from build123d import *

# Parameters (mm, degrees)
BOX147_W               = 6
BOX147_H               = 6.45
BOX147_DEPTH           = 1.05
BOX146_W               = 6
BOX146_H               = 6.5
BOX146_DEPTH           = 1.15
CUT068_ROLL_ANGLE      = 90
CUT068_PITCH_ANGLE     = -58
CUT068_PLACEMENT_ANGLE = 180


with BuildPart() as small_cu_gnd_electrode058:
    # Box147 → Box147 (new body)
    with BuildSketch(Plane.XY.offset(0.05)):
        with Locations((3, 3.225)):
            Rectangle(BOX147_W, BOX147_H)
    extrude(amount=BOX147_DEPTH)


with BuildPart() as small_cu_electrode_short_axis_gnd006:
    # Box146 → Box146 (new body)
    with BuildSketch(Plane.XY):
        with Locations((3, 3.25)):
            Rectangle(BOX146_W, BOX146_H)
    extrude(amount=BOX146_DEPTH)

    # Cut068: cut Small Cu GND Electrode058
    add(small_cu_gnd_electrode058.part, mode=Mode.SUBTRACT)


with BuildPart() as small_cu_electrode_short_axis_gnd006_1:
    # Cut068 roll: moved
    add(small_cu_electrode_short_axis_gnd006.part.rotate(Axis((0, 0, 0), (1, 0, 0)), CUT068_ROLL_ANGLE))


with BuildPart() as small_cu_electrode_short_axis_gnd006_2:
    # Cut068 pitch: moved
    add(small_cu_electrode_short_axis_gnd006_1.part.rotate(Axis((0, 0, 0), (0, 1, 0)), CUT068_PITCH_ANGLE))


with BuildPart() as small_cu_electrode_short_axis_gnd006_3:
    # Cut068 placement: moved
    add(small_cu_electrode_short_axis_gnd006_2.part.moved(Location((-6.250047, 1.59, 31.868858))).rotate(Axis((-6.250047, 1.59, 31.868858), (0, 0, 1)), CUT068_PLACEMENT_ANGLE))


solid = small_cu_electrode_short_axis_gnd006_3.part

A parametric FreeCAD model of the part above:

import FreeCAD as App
import Part
import Sketcher


def add_polygon(sketch, points):
    """Adds a closed chain of lines whose ends are joined by coincident constraints."""
    first, n = sketch.GeometryCount, len(points)
    for a, b in zip(points, points[1:] + points[:1]):
        sketch.addGeometry(Part.LineSegment(App.Vector(*a, 0), App.Vector(*b, 0)), False)
    for i in range(n):
        sketch.addConstraint(Sketcher.Constraint("Coincident", first + i, 2, first + (i + 1) % n, 1))

doc = App.newDocument("Part")
body = doc.addObject("PartDesign::Body", "Body")

sketch1 = body.newObject("Sketcher::SketchObject", "Sketch")
sketch1.AttachmentSupport = (doc.getObject("XY_Plane"), [""])
sketch1.MapMode = "FlatFace"
sketch1.AttachmentOffset = App.Placement(App.Vector(0, 0, 0.05), App.Rotation())
add_polygon(sketch1, [(0, 6.45), (0, 0), (6, 0), (6, 6.45)])
sketch1.addConstraint(Sketcher.Constraint("Vertical", 0))
sketch1.addConstraint(Sketcher.Constraint("Horizontal", 1))
sketch1.addConstraint(Sketcher.Constraint("Vertical", 2))
sketch1.addConstraint(Sketcher.Constraint("Horizontal", 3))
sketch1.addConstraint(Sketcher.Constraint("Coincident", 0, 2, -1, 1))
sketch1.addConstraint(Sketcher.Constraint("DistanceX", 1, 1, 1, 2, 6.0))
sketch1.addConstraint(Sketcher.Constraint("DistanceY", 0, 2, 0, 1, 6.45))
pad1 = body.newObject("PartDesign::Pad", "Pad")
pad1.Profile = sketch1
pad1.Length = 1.05
body2 = doc.addObject("PartDesign::Body", "Body001")

sketch2 = body2.newObject("Sketcher::SketchObject", "Sketch001")
sketch2.AttachmentSupport = (doc.getObject("XY_Plane001"), [""])
sketch2.MapMode = "FlatFace"
add_polygon(sketch2, [(0, 6.5), (0, 0), (6, 0), (6, 6.5)])
sketch2.addConstraint(Sketcher.Constraint("Vertical", 0))
sketch2.addConstraint(Sketcher.Constraint("Horizontal", 1))
sketch2.addConstraint(Sketcher.Constraint("Vertical", 2))
sketch2.addConstraint(Sketcher.Constraint("Horizontal", 3))
sketch2.addConstraint(Sketcher.Constraint("Coincident", 0, 2, -1, 1))
sketch2.addConstraint(Sketcher.Constraint("DistanceX", 1, 1, 1, 2, 6.0))
sketch2.addConstraint(Sketcher.Constraint("DistanceY", 0, 2, 0, 1, 6.5))
pad2 = body2.newObject("PartDesign::Pad", "Pad001")
pad2.Profile = sketch2
pad2.Length = 1.15
doc.recompute()

boolean = body2.newObject("PartDesign::Boolean", "Boolean")
boolean.Type = "Cut"
boolean.addObjects([body])
body3 = doc.addObject("PartDesign::Body", "Body002")
doc.recompute()

body2.Placement = App.Placement(App.Vector(0, 0, 0), App.Rotation(App.Vector(1, 0, 0), 90))
boolean2 = body3.newObject("PartDesign::Boolean", "Boolean001")
boolean2.Type = "Fuse"
boolean2.addObjects([body2])
body4 = doc.addObject("PartDesign::Body", "Body003")
doc.recompute()

body3.Placement = App.Placement(App.Vector(0, 0, 0), App.Rotation(App.Vector(0, 1, 0), 302))
boolean3 = body4.newObject("PartDesign::Boolean", "Boolean002")
boolean3.Type = "Fuse"
boolean3.addObjects([body3])
body5 = doc.addObject("PartDesign::Body", "Body004")
doc.recompute()

body4.Placement = App.Placement(App.Vector(-6.250047, 1.59, 31.868858), App.Rotation(App.Vector(0, 0, 1), 180))
boolean4 = body5.newObject("PartDesign::Boolean", "Boolean003")
boolean4.Type = "Fuse"
boolean4.addObjects([body4])

doc.recompute()
